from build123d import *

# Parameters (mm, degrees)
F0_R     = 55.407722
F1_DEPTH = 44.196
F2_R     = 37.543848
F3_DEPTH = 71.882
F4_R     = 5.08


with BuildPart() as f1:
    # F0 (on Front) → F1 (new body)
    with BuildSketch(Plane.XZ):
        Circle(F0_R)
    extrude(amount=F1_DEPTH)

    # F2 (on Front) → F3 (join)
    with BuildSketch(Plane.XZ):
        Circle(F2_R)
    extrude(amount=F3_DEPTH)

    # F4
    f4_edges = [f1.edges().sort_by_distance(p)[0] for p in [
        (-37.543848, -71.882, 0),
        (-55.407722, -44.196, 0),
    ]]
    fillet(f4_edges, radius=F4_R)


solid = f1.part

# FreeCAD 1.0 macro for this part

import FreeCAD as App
import Part
import Sketcher
from FreeCAD import Vector
Q = App.Units.Quantity


def edges_at(feature, points):
    """Names of the edges that pass closest to the given points."""
    edges = feature.Shape.Edges
    near = lambda p: min(range(len(edges)), key=lambda i: edges[i].distToShape(Part.Vertex(*p))[0])
    return sorted({f"Edge{near(p) + 1}" for p in points})

doc = App.newDocument("Part")
params = doc.addObject("Spreadsheet::Sheet", "Params")
for row, (alias, value) in enumerate([
    ("pad1_length", "1.74 in"),
    ("pad2_length", "2.83 in"),
    ("fillet_radius", "0.2 in"),
], start=1):
    params.set(f"A{row}", alias)
    params.set(f"B{row}", "=" + value)
    params.setAlias(f"B{row}", alias)

body = doc.addObject("PartDesign::Body", "Body")

# Sketch on XZ plane
sketch1 = body.newObject("Sketcher::SketchObject", "Sketch")
sketch1.AttachmentSupport = (doc.getObject("XZ_Plane"), [""])
sketch1.MapMode = "FlatFace"
sketch1.addGeometry(Part.Circle(Vector(0, 0, 0), Vector(0, 0, 1), 55), False)
sketch1.addConstraint([
    Sketcher.Constraint("Coincident", 0, 3, -1, 1),
    Sketcher.Constraint("Diameter", 0, Q("110.815444 mm")),
])
pad1 = body.newObject("PartDesign::Pad", "Pad")
pad1.Profile = sketch1
pad1.setExpression("Length", "Params.pad1_length")

# Sketch on XZ plane
sketch2 = body.newObject("Sketcher::SketchObject", "Sketch001")
sketch2.AttachmentSupport = (doc.getObject("XZ_Plane"), [""])
sketch2.MapMode = "FlatFace"
sketch2.addGeometry(Part.Circle(Vector(0, 0, 0), Vector(0, 0, 1), 38), False)
sketch2.addConstraint([
    Sketcher.Constraint("Coincident", 0, 3, -1, 1),
    Sketcher.Constraint("Diameter", 0, Q("75.087696 mm")),
])
pad2 = body.newObject("PartDesign::Pad", "Pad001")
pad2.Profile = sketch2
pad2.setExpression("Length", "Params.pad2_length")
doc.recompute()

fillet = body.newObject("PartDesign::Fillet", "Fillet")
fillet.Base = (pad2, edges_at(pad2, [(-37.544, -71.882, 0), (-55.408, -44.196, 0)]))
fillet.setExpression("Radius", "Params.fillet_radius")

doc.recompute()
